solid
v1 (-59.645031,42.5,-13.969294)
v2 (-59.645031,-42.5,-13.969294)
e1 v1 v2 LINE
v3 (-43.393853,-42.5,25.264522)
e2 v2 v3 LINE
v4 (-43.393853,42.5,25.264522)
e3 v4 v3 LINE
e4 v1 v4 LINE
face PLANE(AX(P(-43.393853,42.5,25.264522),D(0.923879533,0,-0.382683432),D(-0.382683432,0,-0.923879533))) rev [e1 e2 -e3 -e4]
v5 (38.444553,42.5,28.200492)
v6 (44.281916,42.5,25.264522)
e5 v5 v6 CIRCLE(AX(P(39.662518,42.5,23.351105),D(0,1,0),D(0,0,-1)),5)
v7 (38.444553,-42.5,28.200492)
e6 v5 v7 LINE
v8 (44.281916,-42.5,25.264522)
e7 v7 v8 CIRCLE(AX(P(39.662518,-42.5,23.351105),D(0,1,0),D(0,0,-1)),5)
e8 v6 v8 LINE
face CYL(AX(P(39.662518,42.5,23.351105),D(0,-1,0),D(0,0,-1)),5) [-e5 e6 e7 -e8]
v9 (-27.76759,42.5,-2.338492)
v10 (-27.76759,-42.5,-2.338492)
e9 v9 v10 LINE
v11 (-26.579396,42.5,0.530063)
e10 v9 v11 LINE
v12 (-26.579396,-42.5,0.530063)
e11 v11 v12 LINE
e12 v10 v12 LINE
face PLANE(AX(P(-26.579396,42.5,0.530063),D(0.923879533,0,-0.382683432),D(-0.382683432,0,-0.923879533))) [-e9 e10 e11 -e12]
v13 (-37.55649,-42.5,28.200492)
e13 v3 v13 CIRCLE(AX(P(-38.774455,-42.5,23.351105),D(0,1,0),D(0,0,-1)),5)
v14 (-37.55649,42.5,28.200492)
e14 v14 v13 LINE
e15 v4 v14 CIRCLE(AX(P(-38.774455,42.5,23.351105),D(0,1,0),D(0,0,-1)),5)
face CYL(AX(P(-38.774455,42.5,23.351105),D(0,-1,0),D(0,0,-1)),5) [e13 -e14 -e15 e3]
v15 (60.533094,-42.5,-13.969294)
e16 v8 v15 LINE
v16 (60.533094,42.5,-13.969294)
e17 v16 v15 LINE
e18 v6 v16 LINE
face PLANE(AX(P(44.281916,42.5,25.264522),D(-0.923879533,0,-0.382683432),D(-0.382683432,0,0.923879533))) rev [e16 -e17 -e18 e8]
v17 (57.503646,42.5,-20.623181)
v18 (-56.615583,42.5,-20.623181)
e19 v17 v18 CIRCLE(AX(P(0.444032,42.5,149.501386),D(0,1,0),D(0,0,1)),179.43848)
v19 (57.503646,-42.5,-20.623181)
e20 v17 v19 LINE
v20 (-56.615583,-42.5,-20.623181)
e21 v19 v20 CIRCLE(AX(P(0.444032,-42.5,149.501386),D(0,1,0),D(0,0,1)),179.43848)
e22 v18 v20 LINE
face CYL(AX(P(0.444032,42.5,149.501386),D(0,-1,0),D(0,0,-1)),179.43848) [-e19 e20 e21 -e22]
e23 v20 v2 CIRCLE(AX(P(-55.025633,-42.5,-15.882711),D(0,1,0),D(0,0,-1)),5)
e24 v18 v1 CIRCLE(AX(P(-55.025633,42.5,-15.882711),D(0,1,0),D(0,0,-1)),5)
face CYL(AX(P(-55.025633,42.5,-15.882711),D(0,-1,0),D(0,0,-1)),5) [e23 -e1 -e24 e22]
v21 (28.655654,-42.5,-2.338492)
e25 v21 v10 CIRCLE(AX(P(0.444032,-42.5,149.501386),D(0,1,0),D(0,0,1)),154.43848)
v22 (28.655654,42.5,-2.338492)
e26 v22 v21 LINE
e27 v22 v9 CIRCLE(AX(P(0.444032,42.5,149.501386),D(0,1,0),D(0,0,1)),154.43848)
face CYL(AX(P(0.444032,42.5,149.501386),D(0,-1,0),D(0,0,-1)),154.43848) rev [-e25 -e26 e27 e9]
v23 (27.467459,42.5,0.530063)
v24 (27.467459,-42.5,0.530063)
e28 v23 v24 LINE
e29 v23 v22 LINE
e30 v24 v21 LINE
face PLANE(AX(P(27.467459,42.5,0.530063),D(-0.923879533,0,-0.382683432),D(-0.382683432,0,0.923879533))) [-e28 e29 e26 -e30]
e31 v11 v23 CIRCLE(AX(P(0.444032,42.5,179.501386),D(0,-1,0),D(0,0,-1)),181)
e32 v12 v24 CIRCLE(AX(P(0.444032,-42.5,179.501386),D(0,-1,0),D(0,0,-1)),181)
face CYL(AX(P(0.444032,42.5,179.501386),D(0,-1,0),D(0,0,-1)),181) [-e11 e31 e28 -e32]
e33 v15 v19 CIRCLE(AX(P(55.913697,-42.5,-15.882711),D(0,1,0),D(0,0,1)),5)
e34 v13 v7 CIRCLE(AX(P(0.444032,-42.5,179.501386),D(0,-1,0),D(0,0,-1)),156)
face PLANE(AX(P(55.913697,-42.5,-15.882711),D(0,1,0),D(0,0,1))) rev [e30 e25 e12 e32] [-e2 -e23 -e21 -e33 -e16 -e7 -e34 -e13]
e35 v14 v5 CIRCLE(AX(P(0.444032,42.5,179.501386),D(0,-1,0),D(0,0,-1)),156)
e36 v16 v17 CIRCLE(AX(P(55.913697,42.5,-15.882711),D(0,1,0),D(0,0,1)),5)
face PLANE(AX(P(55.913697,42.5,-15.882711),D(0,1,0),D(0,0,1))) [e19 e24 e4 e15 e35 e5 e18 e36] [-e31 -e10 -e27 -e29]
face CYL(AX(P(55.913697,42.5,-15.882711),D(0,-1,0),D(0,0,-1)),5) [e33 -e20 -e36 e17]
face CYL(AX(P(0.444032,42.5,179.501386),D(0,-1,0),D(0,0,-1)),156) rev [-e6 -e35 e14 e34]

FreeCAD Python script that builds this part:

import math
import FreeCAD as App
import Part
import Sketcher

V = App.Vector
Q = App.Units.Quantity

doc = App.newDocument("Part")
body = doc.addObject("PartDesign::Body", "Body")

sketch1 = body.newObject("Sketcher::SketchObject", "Sketch")
sketch1.AttachmentSupport = (doc.getObject("XZ_Plane"), [""])
sketch1.MapMode = "FlatFace"
sketch1.addGeometry(Part.LineSegment(V(-59.6, -14, 0), V(-43.4, 25.3, 0)), False)
sketch1.addGeometry(Part.ArcOfCircle(Part.Circle(V(-38.8, 23.4, 0), V(0, 0, 1), 5), math.radians(76), math.radians(157)), False)
sketch1.addGeometry(Part.ArcOfCircle(Part.Circle(V(0.4, 179.5, 0), V(0, 0, 1), 156), math.radians(-104), math.radians(-76)), False)
sketch1.addGeometry(Part.ArcOfCircle(Part.Circle(V(39.7, 23.4, 0), V(0, 0, 1), 5), math.radians(22), math.radians(104)), False)
sketch1.addGeometry(Part.LineSegment(V(44.3, 25.3, 0), V(60.5, -14, 0)), False)
sketch1.addGeometry(Part.ArcOfCircle(Part.Circle(V(55.9, -15.9, 0), V(0, 0, 1), 5), math.radians(-71), math.radians(22)), False)
sketch1.addGeometry(Part.ArcOfCircle(Part.Circle(V(0.4, 149.5, 0), V(0, 0, 1), 179.4), math.radians(-109), math.radians(-71)), False)
sketch1.addGeometry(Part.ArcOfCircle(Part.Circle(V(-55, -15.9, 0), V(0, 0, 1), 5), math.radians(158), math.radians(251)), False)
sketch1.addGeometry(Part.LineSegment(V(-26.6, 0.5, 0), V(-27.8, -2.3, 0)), False)
sketch1.addGeometry(Part.ArcOfCircle(Part.Circle(V(0.4, 149.5, 0), V(0, 0, 1), 154.4), math.radians(-101), math.radians(-79)), False)
sketch1.addGeometry(Part.LineSegment(V(28.7, -2.3, 0), V(27.5, 0.5, 0)), False)
sketch1.addGeometry(Part.ArcOfCircle(Part.Circle(V(0.4, 179.5, 0), V(0, 0, 1), 181), math.radians(-98.59), math.radians(-81.41)), False)
sketch1.addConstraint(Sketcher.Constraint("Tangent", 0, 2, 1, 2))
sketch1.addConstraint(Sketcher.Constraint("Tangent", 1, 1, 2, 1))
sketch1.addConstraint(Sketcher.Constraint("Tangent", 2, 2, 3, 2))
sketch1.addConstraint(Sketcher.Constraint("Tangent", 3, 1, 4, 1))
sketch1.addConstraint(Sketcher.Constraint("Tangent", 4, 2, 5, 2))
sketch1.addConstraint(Sketcher.Constraint("Tangent", 5, 1, 6, 2))
sketch1.addConstraint(Sketcher.Constraint("Tangent", 6, 1, 7, 2))
sketch1.addConstraint(Sketcher.Constraint("Tangent", 7, 1, 0, 1))
sketch1.addConstraint(Sketcher.Constraint("Coincident", 8, 2, 9, 1))
sketch1.addConstraint(Sketcher.Constraint("Coincident", 9, 2, 10, 1))
sketch1.addConstraint(Sketcher.Constraint("Coincident", 10, 2, 11, 2))
sketch1.addConstraint(Sketcher.Constraint("Coincident", 11, 1, 8, 1))
sketch1.addConstraint(Sketcher.Constraint("Coincident", 9, 3, 6, 3))
sketch1.addConstraint(Sketcher.Constraint("Coincident", 11, 3, 2, 3))
sketch1.addConstraint(Sketcher.Constraint("Equal", 1, 3))
sketch1.addConstraint(Sketcher.Constraint("Equal", 3, 5))
sketch1.addConstraint(Sketcher.Constraint("Equal", 5, 7))
sketch1.addConstraint(Sketcher.Constraint("Parallel", 0, 8))
sketch1.addConstraint(Sketcher.Constraint("Parallel", 4, 10))
sketch1.addConstraint(Sketcher.Constraint("Horizontal", 1, 3, 3, 3))
sketch1.addConstraint(Sketcher.Constraint("Horizontal", 5, 3, 7, 3))
sketch1.addConstraint(Sketcher.Constraint("Horizontal", 0, 2, 3, 1))
sketch1.addConstraint(Sketcher.Constraint("Horizontal", 8, 2, 9, 2))
sketch1.addConstraint(Sketcher.Constraint("Radius", 1, Q("5 mm")))
sketch1.addConstraint(Sketcher.Constraint("Radius", 2, Q("156 mm")))
sketch1.addConstraint(Sketcher.Constraint("Radius", 11, Q("181 mm")))
sketch1.addConstraint(Sketcher.Constraint("Angle", 0, Q("67.5 deg")))
sketch1.addConstraint(Sketcher.Constraint("DistanceY", 6, 3, 2, 3, Q("30 mm")))
sketch1.addConstraint(Sketcher.Constraint("Radius", 6, Q("179.43848 mm")))
sketch1.addConstraint(Sketcher.Constraint("Radius", 9, Q("154.43848 mm")))
sketch1.addConstraint(Sketcher.Constraint("Distance", 8, Q("3.104901 mm")))
sketch1.addConstraint(Sketcher.Constraint("DistanceY", 4, 2, 3, 3, Q("37.320398 mm")))
sketch1.addConstraint(Sketcher.Constraint("DistanceX", -1, 1, 2, 3, Q("0.444032 mm")))
sketch1.addConstraint(Sketcher.Constraint("DistanceY", 5, 3, -1, 1, Q("15.882711 mm")))
pad1 = body.newObject("PartDesign::Pad", "Pad")
pad1.Profile = sketch1
pad1.Length = 85
pad1.Midplane = True

doc.recompute()
